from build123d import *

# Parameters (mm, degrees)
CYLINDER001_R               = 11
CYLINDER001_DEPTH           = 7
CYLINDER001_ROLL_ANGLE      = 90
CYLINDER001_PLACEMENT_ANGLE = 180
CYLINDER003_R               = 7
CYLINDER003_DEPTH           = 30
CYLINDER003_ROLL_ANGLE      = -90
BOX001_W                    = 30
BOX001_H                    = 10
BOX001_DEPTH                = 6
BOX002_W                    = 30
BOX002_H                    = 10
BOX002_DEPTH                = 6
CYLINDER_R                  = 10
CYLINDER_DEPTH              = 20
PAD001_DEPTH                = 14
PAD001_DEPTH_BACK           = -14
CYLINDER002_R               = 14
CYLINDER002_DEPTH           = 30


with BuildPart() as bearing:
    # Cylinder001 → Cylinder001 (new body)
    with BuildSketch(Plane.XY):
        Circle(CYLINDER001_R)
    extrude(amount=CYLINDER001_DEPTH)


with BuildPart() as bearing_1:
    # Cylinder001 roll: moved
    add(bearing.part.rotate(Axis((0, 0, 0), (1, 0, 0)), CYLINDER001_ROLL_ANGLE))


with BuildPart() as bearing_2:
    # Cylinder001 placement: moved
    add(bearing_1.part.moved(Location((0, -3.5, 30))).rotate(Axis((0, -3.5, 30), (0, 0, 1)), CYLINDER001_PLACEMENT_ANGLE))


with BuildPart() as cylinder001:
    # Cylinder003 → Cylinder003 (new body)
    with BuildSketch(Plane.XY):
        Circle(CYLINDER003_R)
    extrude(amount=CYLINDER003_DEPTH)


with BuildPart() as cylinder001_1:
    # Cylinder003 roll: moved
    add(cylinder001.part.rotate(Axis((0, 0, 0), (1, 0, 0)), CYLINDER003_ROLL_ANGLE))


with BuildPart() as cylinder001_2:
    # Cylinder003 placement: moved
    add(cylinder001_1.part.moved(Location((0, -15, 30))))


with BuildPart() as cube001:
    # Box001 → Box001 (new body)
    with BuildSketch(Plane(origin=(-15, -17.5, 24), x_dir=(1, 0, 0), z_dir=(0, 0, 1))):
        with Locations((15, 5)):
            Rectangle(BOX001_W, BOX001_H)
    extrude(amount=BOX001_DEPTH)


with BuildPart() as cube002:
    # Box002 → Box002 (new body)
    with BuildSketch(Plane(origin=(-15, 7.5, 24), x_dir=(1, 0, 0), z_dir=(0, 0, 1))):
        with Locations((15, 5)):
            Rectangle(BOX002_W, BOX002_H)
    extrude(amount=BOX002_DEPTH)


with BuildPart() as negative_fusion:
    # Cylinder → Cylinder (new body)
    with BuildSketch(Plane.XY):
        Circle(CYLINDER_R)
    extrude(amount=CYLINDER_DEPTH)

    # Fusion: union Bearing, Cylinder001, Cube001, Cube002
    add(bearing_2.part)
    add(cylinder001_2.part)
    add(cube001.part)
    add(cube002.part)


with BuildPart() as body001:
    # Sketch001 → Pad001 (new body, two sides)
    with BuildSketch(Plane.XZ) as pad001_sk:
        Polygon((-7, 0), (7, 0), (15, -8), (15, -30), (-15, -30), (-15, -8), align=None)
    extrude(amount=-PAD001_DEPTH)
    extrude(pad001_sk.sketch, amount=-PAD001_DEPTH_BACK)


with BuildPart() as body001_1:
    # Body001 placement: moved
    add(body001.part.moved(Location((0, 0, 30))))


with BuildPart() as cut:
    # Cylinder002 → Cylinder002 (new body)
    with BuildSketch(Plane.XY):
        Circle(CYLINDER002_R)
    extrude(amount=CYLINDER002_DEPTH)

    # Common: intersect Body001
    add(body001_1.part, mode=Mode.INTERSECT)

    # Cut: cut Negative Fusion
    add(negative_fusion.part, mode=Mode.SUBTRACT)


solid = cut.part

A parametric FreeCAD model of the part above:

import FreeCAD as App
import Part
import Sketcher
Q = App.Units.Quantity


def add_polygon(sketch, points):
    """Adds a closed chain of lines whose ends are joined by coincident constraints."""
    first, n = sketch.GeometryCount, len(points)
    for a, b in zip(points, points[1:] + points[:1]):
        sketch.addGeometry(Part.LineSegment(App.Vector(*a, 0), App.Vector(*b, 0)), False)
    for i in range(n):
        sketch.addConstraint(Sketcher.Constraint("Coincident", first + i, 2, first + (i + 1) % n, 1))

doc = App.newDocument("Part")
body = doc.addObject("PartDesign::Body", "Body")

# Sketch on XY plane
sketch1 = doc.addObject("Sketcher::SketchObject", "Sketch")
body.addObject(sketch1)
sketch1.AttachmentSupport = (doc.XY_Plane, [""])
sketch1.MapMode = "FlatFace"
sketch1.addGeometry(Part.Circle(App.Vector(0, 0, 0), App.Vector(0, 0, 1), 11), False)
sketch1.addConstraint(Sketcher.Constraint("Coincident", 0, 3, -1, 1))
sketch1.addConstraint(Sketcher.Constraint("Diameter", 0, Q("22 mm")))
pad1 = doc.addObject("PartDesign::Pad", "Pad")
body.addObject(pad1)
pad1.Profile = sketch1
pad1.Length = 7
body2 = doc.addObject("PartDesign::Body", "Body001")
doc.recompute()

body.Placement = App.Placement(App.Vector(0, 0, 0), App.Rotation(App.Vector(1, 0, 0), 90))
boolean = doc.addObject("PartDesign::Boolean", "Boolean")
body2.addObject(boolean)
boolean.Type = "Fuse"
boolean.addObjects([body])
body3 = doc.addObject("PartDesign::Body", "Body002")
doc.recompute()

body2.Placement = App.Placement(App.Vector(0, -3.5, 30), App.Rotation(App.Vector(0, 0, 1), 180))
boolean2 = doc.addObject("PartDesign::Boolean", "Boolean001")
body3.addObject(boolean2)
boolean2.Type = "Fuse"
boolean2.addObjects([body2])
body4 = doc.addObject("PartDesign::Body", "Body003")

# Sketch on XY plane
sketch2 = doc.addObject("Sketcher::SketchObject", "Sketch001")
body4.addObject(sketch2)
sketch2.AttachmentSupport = (doc.getObject("XY_Plane003"), [""])
sketch2.MapMode = "FlatFace"
sketch2.addGeometry(Part.Circle(App.Vector(0, 0, 0), App.Vector(0, 0, 1), 7), False)
sketch2.addConstraint(Sketcher.Constraint("Coincident", 0, 3, -1, 1))
sketch2.addConstraint(Sketcher.Constraint("Diameter", 0, Q("14 mm")))
pad2 = doc.addObject("PartDesign::Pad", "Pad001")
body4.addObject(pad2)
pad2.Profile = sketch2
pad2.Length = 30
body5 = doc.addObject("PartDesign::Body", "Body004")
doc.recompute()

body4.Placement = App.Placement(App.Vector(0, 0, 0), App.Rotation(App.Vector(1, 0, 0), 270))
boolean3 = doc.addObject("PartDesign::Boolean", "Boolean002")
body5.addObject(boolean3)
boolean3.Type = "Fuse"
boolean3.addObjects([body4])
body6 = doc.addObject("PartDesign::Body", "Body005")
doc.recompute()

body5.Placement = App.Placement(App.Vector(0, -15, 30), App.Rotation(App.Vector(0, 0, 1), 0))
boolean4 = doc.addObject("PartDesign::Boolean", "Boolean003")
body6.addObject(boolean4)
boolean4.Type = "Fuse"
boolean4.addObjects([body5])
body7 = doc.addObject("PartDesign::Body", "Body006")

# Sketch on XY plane
sketch3 = doc.addObject("Sketcher::SketchObject", "Sketch002")
body7.addObject(sketch3)
sketch3.AttachmentSupport = (doc.getObject("XY_Plane006"), [""])
sketch3.MapMode = "FlatFace"
sketch3.AttachmentOffset = App.Placement(App.Vector(0, 0, 24), App.Rotation())
add_polygon(sketch3, [(-15, -7.5), (-15, -17.5), (15, -17.5), (15, -7.5)])  # lines 0-3
sketch3.addConstraint(Sketcher.Constraint("Vertical", 0))
sketch3.addConstraint(Sketcher.Constraint("Horizontal", 1))
sketch3.addConstraint(Sketcher.Constraint("Vertical", 2))
sketch3.addConstraint(Sketcher.Constraint("Horizontal", 3))
sketch3.addConstraint(Sketcher.Constraint("DistanceX", 1, 1, 1, 2, Q("30 mm")))
sketch3.addConstraint(Sketcher.Constraint("DistanceY", 0, 2, 0, 1, Q("10 mm")))
sketch3.addConstraint(Sketcher.Constraint("DistanceX", 0, 2, -1, 1, Q("15 mm")))
sketch3.addConstraint(Sketcher.Constraint("DistanceY", 0, 2, -1, 1, Q("17.5 mm")))
pad3 = doc.addObject("PartDesign::Pad", "Pad002")
body7.addObject(pad3)
pad3.Profile = sketch3
pad3.Length = 6
body8 = doc.addObject("PartDesign::Body", "Body007")

# Sketch on XY plane
sketch4 = doc.addObject("Sketcher::SketchObject", "Sketch003")
body8.addObject(sketch4)
sketch4.AttachmentSupport = (doc.getObject("XY_Plane007"), [""])
sketch4.MapMode = "FlatFace"
sketch4.AttachmentOffset = App.Placement(App.Vector(0, 0, 24), App.Rotation())
add_polygon(sketch4, [(-15, 17.5), (-15, 7.5), (15, 7.5), (15, 17.5)])  # lines 0-3
sketch4.addConstraint(Sketcher.Constraint("Vertical", 0))
sketch4.addConstraint(Sketcher.Constraint("Horizontal", 1))
sketch4.addConstraint(Sketcher.Constraint("Vertical", 2))
sketch4.addConstraint(Sketcher.Constraint("Horizontal", 3))
sketch4.addConstraint(Sketcher.Constraint("DistanceX", 1, 1, 1, 2, Q("30 mm")))
sketch4.addConstraint(Sketcher.Constraint("DistanceY", 0, 2, 0, 1, Q("10 mm")))
sketch4.addConstraint(Sketcher.Constraint("DistanceX", 0, 2, -1, 1, Q("15 mm")))
sketch4.addConstraint(Sketcher.Constraint("DistanceY", -1, 1, 0, 2, Q("7.5 mm")))
pad4 = doc.addObject("PartDesign::Pad", "Pad003")
body8.addObject(pad4)
pad4.Profile = sketch4
pad4.Length = 6
body9 = doc.addObject("PartDesign::Body", "Body008")

# Sketch on XY plane
sketch5 = doc.addObject("Sketcher::SketchObject", "Sketch004")
body9.addObject(sketch5)
sketch5.AttachmentSupport = (doc.getObject("XY_Plane008"), [""])
sketch5.MapMode = "FlatFace"
sketch5.addGeometry(Part.Circle(App.Vector(0, 0, 0), App.Vector(0, 0, 1), 10), False)
sketch5.addConstraint(Sketcher.Constraint("Coincident", 0, 3, -1, 1))
sketch5.addConstraint(Sketcher.Constraint("Diameter", 0, Q("20 mm")))
pad5 = doc.addObject("PartDesign::Pad", "Pad004")
body9.addObject(pad5)
pad5.Profile = sketch5
pad5.Length = 20
doc.recompute()

boolean5 = doc.addObject("PartDesign::Boolean", "Boolean004")
body9.addObject(boolean5)
boolean5.Type = "Fuse"
boolean5.addObjects([body3])
doc.recompute()

boolean6 = doc.addObject("PartDesign::Boolean", "Boolean005")
body9.addObject(boolean6)
boolean6.Type = "Fuse"
boolean6.addObjects([body6])
doc.recompute()

boolean7 = doc.addObject("PartDesign::Boolean", "Boolean006")
body9.addObject(boolean7)
boolean7.Type = "Fuse"
boolean7.addObjects([body7])
doc.recompute()

boolean8 = doc.addObject("PartDesign::Boolean", "Boolean007")
body9.addObject(boolean8)
boolean8.Type = "Fuse"
boolean8.addObjects([body8])
body10 = doc.addObject("PartDesign::Body", "Body009")

# Sketch on XZ plane
sketch6 = doc.addObject("Sketcher::SketchObject", "Sketch005")
body10.addObject(sketch6)
sketch6.AttachmentSupport = (doc.getObject("XZ_Plane009"), [""])
sketch6.MapMode = "FlatFace"
add_polygon(sketch6, [(7, 0), (-7, 0), (-15, -8), (-15, -30), (15, -30), (15, -8)])  # lines 0-5
sketch6.addConstraint(Sketcher.Constraint("Horizontal", 0))
sketch6.addConstraint(Sketcher.Constraint("Vertical", 2))
sketch6.addConstraint(Sketcher.Constraint("Horizontal", 3))
sketch6.addConstraint(Sketcher.Constraint("Vertical", 4))
sketch6.addConstraint(Sketcher.Constraint("Symmetric", 0, 2, 5, 2, -1, 1))
sketch6.addConstraint(Sketcher.Constraint("Symmetric", 1, 2, 4, 2, -2))
sketch6.addConstraint(Sketcher.Constraint("Perpendicular", 1, 5))
sketch6.addConstraint(Sketcher.Constraint("DistanceX", 0, 2, 0, 1, Q("14 mm")))
sketch6.addConstraint(Sketcher.Constraint("DistanceX", 3, 1, 3, 2, Q("30 mm")))
sketch6.addConstraint(Sketcher.Constraint("DistanceY", 2, 2, 2, 1, Q("22 mm")))
pad6 = doc.addObject("PartDesign::Pad", "Pad005")
body10.addObject(pad6)
pad6.Profile = sketch6
pad6.Type = "TwoLengths"
pad6.Length = 14
pad6.Length2 = 14
pad6.Reversed = True
body11 = doc.addObject("PartDesign::Body", "Body010")
doc.recompute()

body10.Placement = App.Placement(App.Vector(0, 0, 30), App.Rotation(App.Vector(0, 0, 1), 0))
boolean9 = doc.addObject("PartDesign::Boolean", "Boolean008")
body11.addObject(boolean9)
boolean9.Type = "Fuse"
boolean9.addObjects([body10])
body12 = doc.addObject("PartDesign::Body", "Body011")

# Sketch on XY plane
sketch7 = doc.addObject("Sketcher::SketchObject", "Sketch006")
body12.addObject(sketch7)
sketch7.AttachmentSupport = (doc.getObject("XY_Plane011"), [""])
sketch7.MapMode = "FlatFace"
sketch7.addGeometry(Part.Circle(App.Vector(0, 0, 0), App.Vector(0, 0, 1), 14), False)
sketch7.addConstraint(Sketcher.Constraint("Coincident", 0, 3, -1, 1))
sketch7.addConstraint(Sketcher.Constraint("Diameter", 0, Q("28 mm")))
pad7 = doc.addObject("PartDesign::Pad", "Pad006")
body12.addObject(pad7)
pad7.Profile = sketch7
pad7.Length = 30
doc.recompute()

boolean10 = doc.addObject("PartDesign::Boolean", "Boolean009")
body12.addObject(boolean10)
boolean10.Type = "Common"
boolean10.addObjects([body11])
doc.recompute()

boolean11 = doc.addObject("PartDesign::Boolean", "Boolean010")
body12.addObject(boolean11)
boolean11.Type = "Cut"
boolean11.addObjects([body9])

doc.recompute()
